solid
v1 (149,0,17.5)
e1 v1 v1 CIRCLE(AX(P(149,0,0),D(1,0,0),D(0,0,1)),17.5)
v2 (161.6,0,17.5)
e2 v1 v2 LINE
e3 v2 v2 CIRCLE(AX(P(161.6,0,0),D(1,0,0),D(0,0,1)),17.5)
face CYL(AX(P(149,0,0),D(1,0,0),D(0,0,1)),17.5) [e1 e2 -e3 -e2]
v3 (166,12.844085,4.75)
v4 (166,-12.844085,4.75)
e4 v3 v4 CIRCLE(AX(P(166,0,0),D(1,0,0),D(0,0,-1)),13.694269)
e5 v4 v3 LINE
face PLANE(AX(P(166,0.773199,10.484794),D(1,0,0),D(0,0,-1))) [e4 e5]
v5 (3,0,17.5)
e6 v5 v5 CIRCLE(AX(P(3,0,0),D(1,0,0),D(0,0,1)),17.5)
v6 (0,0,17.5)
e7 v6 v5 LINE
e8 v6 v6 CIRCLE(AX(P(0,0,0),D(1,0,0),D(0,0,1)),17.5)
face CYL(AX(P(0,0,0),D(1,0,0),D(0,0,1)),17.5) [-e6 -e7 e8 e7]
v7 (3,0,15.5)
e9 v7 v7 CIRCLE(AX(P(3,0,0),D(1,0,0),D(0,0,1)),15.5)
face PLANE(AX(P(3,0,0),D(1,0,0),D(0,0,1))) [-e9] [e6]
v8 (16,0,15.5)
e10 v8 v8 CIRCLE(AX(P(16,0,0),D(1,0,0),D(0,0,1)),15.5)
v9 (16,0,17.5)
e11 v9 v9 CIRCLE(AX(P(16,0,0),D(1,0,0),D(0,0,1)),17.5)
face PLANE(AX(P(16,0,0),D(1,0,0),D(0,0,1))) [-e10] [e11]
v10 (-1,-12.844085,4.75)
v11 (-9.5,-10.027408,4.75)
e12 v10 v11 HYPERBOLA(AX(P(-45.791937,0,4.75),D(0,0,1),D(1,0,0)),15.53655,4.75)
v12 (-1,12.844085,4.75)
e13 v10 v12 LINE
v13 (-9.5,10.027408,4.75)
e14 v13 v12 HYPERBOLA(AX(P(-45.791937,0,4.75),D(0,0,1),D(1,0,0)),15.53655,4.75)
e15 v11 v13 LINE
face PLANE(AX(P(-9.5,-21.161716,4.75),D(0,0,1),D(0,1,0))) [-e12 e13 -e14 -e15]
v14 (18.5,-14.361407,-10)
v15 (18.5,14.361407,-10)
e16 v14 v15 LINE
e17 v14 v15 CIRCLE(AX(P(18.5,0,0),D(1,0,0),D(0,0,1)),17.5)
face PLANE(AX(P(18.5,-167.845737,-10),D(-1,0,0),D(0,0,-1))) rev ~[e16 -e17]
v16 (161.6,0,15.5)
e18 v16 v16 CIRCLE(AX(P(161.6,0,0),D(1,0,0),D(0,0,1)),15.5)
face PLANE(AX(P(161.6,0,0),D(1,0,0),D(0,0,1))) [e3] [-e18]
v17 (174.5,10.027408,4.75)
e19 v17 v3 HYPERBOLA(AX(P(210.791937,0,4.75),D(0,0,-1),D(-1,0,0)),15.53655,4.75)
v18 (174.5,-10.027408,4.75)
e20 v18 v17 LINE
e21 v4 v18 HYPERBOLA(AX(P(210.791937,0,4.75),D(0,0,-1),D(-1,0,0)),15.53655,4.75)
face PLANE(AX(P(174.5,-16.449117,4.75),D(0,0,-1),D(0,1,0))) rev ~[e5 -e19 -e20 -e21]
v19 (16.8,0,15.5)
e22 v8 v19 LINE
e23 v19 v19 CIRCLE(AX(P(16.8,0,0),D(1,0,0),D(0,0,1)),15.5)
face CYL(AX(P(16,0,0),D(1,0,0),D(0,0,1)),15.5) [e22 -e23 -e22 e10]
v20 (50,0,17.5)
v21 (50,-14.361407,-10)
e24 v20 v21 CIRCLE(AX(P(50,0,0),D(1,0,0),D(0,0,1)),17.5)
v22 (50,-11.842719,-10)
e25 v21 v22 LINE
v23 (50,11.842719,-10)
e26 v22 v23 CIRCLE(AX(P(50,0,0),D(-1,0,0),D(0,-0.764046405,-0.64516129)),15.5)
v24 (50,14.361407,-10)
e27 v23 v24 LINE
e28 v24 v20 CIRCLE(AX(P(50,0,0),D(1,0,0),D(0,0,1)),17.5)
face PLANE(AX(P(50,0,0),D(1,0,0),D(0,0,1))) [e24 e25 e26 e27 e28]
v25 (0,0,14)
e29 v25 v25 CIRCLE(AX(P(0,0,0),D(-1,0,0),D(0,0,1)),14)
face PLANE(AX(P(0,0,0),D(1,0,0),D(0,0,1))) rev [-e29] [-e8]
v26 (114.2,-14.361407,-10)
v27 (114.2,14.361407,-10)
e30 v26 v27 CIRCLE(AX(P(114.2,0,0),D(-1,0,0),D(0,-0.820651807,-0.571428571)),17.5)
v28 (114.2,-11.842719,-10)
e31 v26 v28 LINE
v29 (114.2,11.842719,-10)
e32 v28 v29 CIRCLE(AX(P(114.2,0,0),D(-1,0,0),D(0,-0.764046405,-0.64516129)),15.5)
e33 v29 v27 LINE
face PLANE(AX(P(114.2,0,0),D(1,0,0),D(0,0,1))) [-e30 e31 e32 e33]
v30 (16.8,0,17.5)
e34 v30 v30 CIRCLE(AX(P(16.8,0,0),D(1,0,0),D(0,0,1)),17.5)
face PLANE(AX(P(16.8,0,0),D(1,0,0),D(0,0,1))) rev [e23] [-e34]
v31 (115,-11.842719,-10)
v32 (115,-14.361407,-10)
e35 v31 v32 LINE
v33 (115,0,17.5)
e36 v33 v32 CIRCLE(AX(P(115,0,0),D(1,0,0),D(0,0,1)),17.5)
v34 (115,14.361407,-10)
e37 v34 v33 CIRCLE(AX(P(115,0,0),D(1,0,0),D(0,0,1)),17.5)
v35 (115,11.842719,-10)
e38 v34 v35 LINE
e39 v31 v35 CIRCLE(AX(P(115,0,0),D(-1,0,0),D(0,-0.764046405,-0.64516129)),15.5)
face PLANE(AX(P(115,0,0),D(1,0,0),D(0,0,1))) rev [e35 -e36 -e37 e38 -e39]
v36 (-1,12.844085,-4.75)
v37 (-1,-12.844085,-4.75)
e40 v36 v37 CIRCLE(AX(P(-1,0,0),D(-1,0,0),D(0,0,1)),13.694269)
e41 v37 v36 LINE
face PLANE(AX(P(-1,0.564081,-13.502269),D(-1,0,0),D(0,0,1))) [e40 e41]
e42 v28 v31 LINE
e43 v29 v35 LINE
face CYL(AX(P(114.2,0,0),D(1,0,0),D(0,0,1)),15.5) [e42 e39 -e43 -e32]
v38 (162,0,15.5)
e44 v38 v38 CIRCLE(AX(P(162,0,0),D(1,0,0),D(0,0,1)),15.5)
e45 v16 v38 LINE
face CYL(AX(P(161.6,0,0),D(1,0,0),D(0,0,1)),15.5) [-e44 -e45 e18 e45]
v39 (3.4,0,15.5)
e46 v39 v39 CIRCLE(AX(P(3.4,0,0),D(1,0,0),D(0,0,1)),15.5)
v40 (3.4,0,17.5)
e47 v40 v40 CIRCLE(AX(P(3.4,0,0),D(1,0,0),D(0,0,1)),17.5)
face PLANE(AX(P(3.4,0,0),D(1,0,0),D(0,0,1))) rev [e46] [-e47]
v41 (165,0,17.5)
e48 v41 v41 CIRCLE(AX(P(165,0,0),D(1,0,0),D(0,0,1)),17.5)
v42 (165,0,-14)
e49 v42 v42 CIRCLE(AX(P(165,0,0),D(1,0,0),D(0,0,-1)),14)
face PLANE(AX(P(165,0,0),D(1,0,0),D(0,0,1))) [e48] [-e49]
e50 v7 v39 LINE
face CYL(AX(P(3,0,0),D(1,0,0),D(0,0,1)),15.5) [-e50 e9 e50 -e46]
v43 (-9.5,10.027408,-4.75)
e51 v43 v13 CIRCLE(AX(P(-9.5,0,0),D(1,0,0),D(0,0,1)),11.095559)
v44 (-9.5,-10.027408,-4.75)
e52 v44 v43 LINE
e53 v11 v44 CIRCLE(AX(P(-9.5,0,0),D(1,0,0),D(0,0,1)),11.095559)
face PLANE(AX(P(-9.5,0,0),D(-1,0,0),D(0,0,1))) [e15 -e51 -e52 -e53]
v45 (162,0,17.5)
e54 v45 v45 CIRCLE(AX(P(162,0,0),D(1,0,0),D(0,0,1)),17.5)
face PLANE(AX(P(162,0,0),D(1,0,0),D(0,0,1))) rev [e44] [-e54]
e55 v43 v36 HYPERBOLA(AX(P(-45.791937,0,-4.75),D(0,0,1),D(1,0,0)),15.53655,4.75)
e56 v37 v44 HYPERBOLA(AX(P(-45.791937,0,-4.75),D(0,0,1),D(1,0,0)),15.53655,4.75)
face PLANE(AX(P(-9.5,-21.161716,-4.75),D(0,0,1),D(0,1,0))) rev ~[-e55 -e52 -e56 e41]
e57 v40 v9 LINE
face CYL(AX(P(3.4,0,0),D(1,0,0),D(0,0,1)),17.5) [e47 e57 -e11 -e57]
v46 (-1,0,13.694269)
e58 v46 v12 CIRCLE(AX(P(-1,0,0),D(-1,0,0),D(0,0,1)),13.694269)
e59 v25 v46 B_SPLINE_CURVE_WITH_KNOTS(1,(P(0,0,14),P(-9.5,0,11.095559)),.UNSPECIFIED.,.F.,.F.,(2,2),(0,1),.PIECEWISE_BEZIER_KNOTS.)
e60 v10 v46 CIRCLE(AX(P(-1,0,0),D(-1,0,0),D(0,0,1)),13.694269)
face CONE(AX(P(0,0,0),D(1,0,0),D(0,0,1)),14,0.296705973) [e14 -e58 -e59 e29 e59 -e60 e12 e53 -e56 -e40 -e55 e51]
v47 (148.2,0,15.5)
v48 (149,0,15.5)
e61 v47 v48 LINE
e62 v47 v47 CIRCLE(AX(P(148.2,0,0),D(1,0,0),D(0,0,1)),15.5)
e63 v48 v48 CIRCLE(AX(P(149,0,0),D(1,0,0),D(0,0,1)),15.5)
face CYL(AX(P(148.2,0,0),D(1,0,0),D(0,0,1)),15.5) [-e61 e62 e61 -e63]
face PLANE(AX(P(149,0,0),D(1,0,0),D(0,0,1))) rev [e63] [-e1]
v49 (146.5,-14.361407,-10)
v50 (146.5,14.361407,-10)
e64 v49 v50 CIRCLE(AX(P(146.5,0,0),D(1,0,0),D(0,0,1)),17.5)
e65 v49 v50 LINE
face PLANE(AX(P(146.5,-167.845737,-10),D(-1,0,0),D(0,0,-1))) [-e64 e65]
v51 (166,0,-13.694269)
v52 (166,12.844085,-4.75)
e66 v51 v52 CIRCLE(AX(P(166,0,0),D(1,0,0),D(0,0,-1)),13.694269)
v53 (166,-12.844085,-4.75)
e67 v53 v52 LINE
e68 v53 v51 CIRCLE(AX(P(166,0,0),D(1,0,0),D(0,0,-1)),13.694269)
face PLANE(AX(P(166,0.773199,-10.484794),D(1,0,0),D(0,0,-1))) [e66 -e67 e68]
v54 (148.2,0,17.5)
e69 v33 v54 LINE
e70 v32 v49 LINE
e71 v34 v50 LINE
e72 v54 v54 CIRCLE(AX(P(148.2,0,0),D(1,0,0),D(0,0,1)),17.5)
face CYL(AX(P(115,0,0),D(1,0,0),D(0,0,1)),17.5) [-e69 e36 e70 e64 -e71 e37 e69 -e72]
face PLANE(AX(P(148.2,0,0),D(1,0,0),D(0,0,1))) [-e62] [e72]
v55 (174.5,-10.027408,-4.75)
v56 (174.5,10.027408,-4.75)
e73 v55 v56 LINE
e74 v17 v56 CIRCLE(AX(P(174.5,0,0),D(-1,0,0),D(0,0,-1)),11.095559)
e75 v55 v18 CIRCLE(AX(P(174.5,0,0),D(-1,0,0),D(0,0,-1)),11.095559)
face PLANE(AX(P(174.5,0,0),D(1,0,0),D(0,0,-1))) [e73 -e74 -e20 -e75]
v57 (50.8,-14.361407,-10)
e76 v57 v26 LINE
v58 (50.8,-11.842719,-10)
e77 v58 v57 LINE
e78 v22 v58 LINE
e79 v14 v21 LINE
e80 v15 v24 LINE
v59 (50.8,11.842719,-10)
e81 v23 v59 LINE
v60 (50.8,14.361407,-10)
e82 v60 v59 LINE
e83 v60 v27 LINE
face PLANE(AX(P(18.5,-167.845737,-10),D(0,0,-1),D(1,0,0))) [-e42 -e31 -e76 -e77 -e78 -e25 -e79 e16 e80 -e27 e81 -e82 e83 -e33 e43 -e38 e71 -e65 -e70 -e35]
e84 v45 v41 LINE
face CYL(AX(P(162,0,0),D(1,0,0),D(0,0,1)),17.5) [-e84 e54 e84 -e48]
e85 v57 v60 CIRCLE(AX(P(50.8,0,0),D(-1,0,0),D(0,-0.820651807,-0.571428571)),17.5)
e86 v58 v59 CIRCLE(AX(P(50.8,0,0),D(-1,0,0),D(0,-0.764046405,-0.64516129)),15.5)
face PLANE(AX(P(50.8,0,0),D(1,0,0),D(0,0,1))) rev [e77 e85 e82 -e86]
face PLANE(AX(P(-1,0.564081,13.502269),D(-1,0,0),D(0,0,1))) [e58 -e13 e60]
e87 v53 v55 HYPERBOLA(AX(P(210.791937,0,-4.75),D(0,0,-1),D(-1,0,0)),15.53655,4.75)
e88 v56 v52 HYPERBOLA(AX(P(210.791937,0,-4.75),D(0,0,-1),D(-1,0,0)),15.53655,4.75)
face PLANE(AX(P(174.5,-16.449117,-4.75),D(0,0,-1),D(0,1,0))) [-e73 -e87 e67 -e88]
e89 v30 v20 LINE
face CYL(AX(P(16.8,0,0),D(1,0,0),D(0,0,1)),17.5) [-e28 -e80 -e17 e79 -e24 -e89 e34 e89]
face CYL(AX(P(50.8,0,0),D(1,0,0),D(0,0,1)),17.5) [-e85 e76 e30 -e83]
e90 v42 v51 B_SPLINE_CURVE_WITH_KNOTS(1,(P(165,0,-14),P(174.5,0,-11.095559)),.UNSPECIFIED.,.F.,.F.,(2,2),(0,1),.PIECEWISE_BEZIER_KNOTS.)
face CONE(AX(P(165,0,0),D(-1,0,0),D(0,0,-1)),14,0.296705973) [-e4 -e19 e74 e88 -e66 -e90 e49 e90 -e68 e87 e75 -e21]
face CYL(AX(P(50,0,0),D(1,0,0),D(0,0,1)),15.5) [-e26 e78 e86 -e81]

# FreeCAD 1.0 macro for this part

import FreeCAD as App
import Part
import Sketcher
from FreeCAD import Vector


def add_polygon(sketch, points):
    """Adds a closed chain of lines whose ends are joined by coincident constraints."""
    first, n = sketch.GeometryCount, len(points)
    for a, b in zip(points, points[1:] + points[:1]):
        sketch.addGeometry(Part.LineSegment(App.Vector(*a, 0), App.Vector(*b, 0)), False)
    for i in range(n):
        sketch.addConstraint(Sketcher.Constraint("Coincident", first + i, 2, first + (i + 1) % n, 1))

doc = App.newDocument("Part")
body = doc.addObject("PartDesign::Body", "Body")

# Sketch on XZ plane
sketch1 = body.newObject("Sketcher::SketchObject", "Sketch")
sketch1.AttachmentSupport = (doc.getObject("XZ_Plane"), [""])
sketch1.MapMode = "FlatFace"
add_polygon(sketch1, [(0, -17.5), (0, 0), (165, 0), (165, -17.5), (162, -17.5), (162, -15.5), (161.6, -15.5), (161.6, -17.5), (149, -17.5), (149, -15.5), (148.2, -15.5), (148.2, -17.5), (115, -17.5), (115, -15.5), (114.2, -15.5), (114.2, -17.5), (50.8, -17.5), (50.8, -15.5), (50, -15.5), (50, -17.5), (16.8, -17.5), (16.8, -15.5), (16, -15.5), (16, -17.5), (3.4, -17.5), (3.4, -15.5), (3, -15.5), (3, -17.5)])  # lines 0-27
sketch1.addConstraint(Sketcher.Constraint("Vertical", 0))
sketch1.addConstraint(Sketcher.Constraint("Horizontal", 1))
sketch1.addConstraint(Sketcher.Constraint("Vertical", 2))
sketch1.addConstraint(Sketcher.Constraint("Horizontal", 3))
sketch1.addConstraint(Sketcher.Constraint("Vertical", 4))
sketch1.addConstraint(Sketcher.Constraint("Horizontal", 5))
sketch1.addConstraint(Sketcher.Constraint("Vertical", 6))
sketch1.addConstraint(Sketcher.Constraint("Horizontal", 7))
sketch1.addConstraint(Sketcher.Constraint("Vertical", 8))
sketch1.addConstraint(Sketcher.Constraint("Horizontal", 9))
sketch1.addConstraint(Sketcher.Constraint("Vertical", 10))
sketch1.addConstraint(Sketcher.Constraint("Horizontal", 11))
sketch1.addConstraint(Sketcher.Constraint("Vertical", 12))
sketch1.addConstraint(Sketcher.Constraint("Horizontal", 13))
sketch1.addConstraint(Sketcher.Constraint("Vertical", 14))
sketch1.addConstraint(Sketcher.Constraint("Horizontal", 15))
sketch1.addConstraint(Sketcher.Constraint("Vertical", 16))
sketch1.addConstraint(Sketcher.Constraint("Horizontal", 17))
sketch1.addConstraint(Sketcher.Constraint("Vertical", 18))
sketch1.addConstraint(Sketcher.Constraint("Horizontal", 19))
sketch1.addConstraint(Sketcher.Constraint("Vertical", 20))
sketch1.addConstraint(Sketcher.Constraint("Horizontal", 21))
sketch1.addConstraint(Sketcher.Constraint("Vertical", 22))
sketch1.addConstraint(Sketcher.Constraint("Horizontal", 23))
sketch1.addConstraint(Sketcher.Constraint("Vertical", 24))
sketch1.addConstraint(Sketcher.Constraint("Horizontal", 25))
sketch1.addConstraint(Sketcher.Constraint("Vertical", 26))
sketch1.addConstraint(Sketcher.Constraint("Horizontal", 27))
sketch1.addConstraint(Sketcher.Constraint("Coincident", 0, 2, -1, 1))
sketch1.addConstraint(Sketcher.Constraint("Horizontal", 3, 2, 6, 2))
sketch1.addConstraint(Sketcher.Constraint("Horizontal", 5, 2, 8, 2))
sketch1.addConstraint(Sketcher.Constraint("Horizontal", 7, 2, 10, 2))
sketch1.addConstraint(Sketcher.Constraint("Horizontal", 9, 2, 12, 2))
sketch1.addConstraint(Sketcher.Constraint("Horizontal", 11, 2, 14, 2))
sketch1.addConstraint(Sketcher.Constraint("Horizontal", 13, 2, 16, 2))
sketch1.addConstraint(Sketcher.Constraint("Horizontal", 15, 2, 18, 2))
sketch1.addConstraint(Sketcher.Constraint("Horizontal", 17, 2, 20, 2))
sketch1.addConstraint(Sketcher.Constraint("Horizontal", 19, 2, 22, 2))
sketch1.addConstraint(Sketcher.Constraint("Horizontal", 21, 2, 24, 2))
sketch1.addConstraint(Sketcher.Constraint("Horizontal", 23, 2, 26, 2))
sketch1.addConstraint(Sketcher.Constraint("Equal", 9, 13))
sketch1.addConstraint(Sketcher.Constraint("Equal", 13, 17))
sketch1.addConstraint(Sketcher.Constraint("Equal", 11, 19))
sketch1.addConstraint(Sketcher.Constraint("Equal", 17, 21))
sketch1.addConstraint(Sketcher.Constraint("Equal", 7, 23))
sketch1.addConstraint(Sketcher.Constraint("Equal", 5, 25))
sketch1.addConstraint(Sketcher.Constraint("Equal", 3, 27))
sketch1.addConstraint(Sketcher.Constraint("DistanceX", 1, 1, 1, 2, 165.0))
sketch1.addConstraint(Sketcher.Constraint("DistanceX", 3, 2, 3, 1, 3.0))
sketch1.addConstraint(Sketcher.Constraint("DistanceY", 4, 1, 4, 2, 2.0))
sketch1.addConstraint(Sketcher.Constraint("DistanceX", 5, 2, 5, 1, 0.4))
sketch1.addConstraint(Sketcher.Constraint("DistanceX", 7, 2, 7, 1, 12.6))
sketch1.addConstraint(Sketcher.Constraint("DistanceX", 9, 2, 9, 1, 0.8))
sketch1.addConstraint(Sketcher.Constraint("DistanceX", 11, 2, 11, 1, 33.2))
sketch1.addConstraint(Sketcher.Constraint("DistanceY", 0, 1, 0, 2, 17.5))
revolution = body.newObject("PartDesign::Revolution", "Revolution")
revolution.Profile = sketch1
revolution.ReferenceAxis = (sketch1, ["H_Axis"])
revolution.Angle = 360

# Sketch on XZ plane
sketch2 = body.newObject("Sketcher::SketchObject", "Sketch001")
sketch2.AttachmentSupport = (doc.getObject("XZ_Plane"), [""])
sketch2.MapMode = "FlatFace"
add_polygon(sketch2, [(18.5, -29.89913), (18.5, -10), (146.5, -10), (146.5, -29.89913)])  # lines 0-3
sketch2.addConstraint(Sketcher.Constraint("Vertical", 0))
sketch2.addConstraint(Sketcher.Constraint("Horizontal", 1))
sketch2.addConstraint(Sketcher.Constraint("Vertical", 2))
sketch2.addConstraint(Sketcher.Constraint("Horizontal", 3))
sketch2.addConstraint(Sketcher.Constraint("DistanceX", 1, 1, 1, 2, 128.0))
sketch2.addConstraint(Sketcher.Constraint("DistanceY", 0, 2, -1, 1, 10.0))
sketch2.addConstraint(Sketcher.Constraint("DistanceX", -1, 1, 0, 2, 18.5))
sketch2.addConstraint(Sketcher.Constraint("DistanceY", 0, 1, 0, 2, 19.89913))
pocket1 = body.newObject("PartDesign::Pocket", "Pocket")
pocket1.Profile = sketch2
pocket1.Type = "ThroughAll"
pocket1.Midplane = True

# Sketch on YZ plane
sketch3 = body.newObject("Sketcher::SketchObject", "Sketch002")
sketch3.AttachmentSupport = (doc.getObject("YZ_Plane"), [""])
sketch3.MapMode = "FlatFace"
sketch3.addGeometry(Part.Circle(Vector(0, 0, 0), Vector(0, 0, 1), 14), False)
sketch3.addConstraint(Sketcher.Constraint("Coincident", 0, 3, -1, 1))
sketch3.addConstraint(Sketcher.Constraint("Diameter", 0, 28.0))
pad1 = body.newObject("PartDesign::Pad", "Pad")
pad1.Profile = sketch3
pad1.Length = 9.5
pad1.Reversed = True
pad1.TaperAngle = -17

# Sketch on YZ plane
sketch4 = body.newObject("Sketcher::SketchObject", "Sketch003")
sketch4.AttachmentSupport = (doc.getObject("YZ_Plane"), [""])
sketch4.MapMode = "FlatFace"
sketch4.AttachmentOffset = App.Placement(Vector(0, 0, -9.5), App.Rotation())
add_polygon(sketch4, [(22.289878, -22.254539), (-21.161716, -22.254539), (-21.161716, -4.75), (22.289878, -4.75)])  # lines 0-3
add_polygon(sketch4, [(22.289878, 4.75), (-21.161716, 4.75), (-21.161716, 22.254539), (22.289878, 22.254539)])  # lines 4-7
sketch4.addConstraint(Sketcher.Constraint("Horizontal", 0))
sketch4.addConstraint(Sketcher.Constraint("Vertical", 1))
sketch4.addConstraint(Sketcher.Constraint("Horizontal", 2))
sketch4.addConstraint(Sketcher.Constraint("Vertical", 3))
sketch4.addConstraint(Sketcher.Constraint("Horizontal", 4))
sketch4.addConstraint(Sketcher.Constraint("Vertical", 5))
sketch4.addConstraint(Sketcher.Constraint("Horizontal", 6))
sketch4.addConstraint(Sketcher.Constraint("Vertical", 7))
sketch4.addConstraint(Sketcher.Constraint("Symmetric", 1, 2, 4, 2, -1))
sketch4.addConstraint(Sketcher.Constraint("Symmetric", 3, 2, 6, 2, -1))
sketch4.addConstraint(Sketcher.Constraint("DistanceY", 1, 2, 4, 2, 9.5))
sketch4.addConstraint(Sketcher.Constraint("DistanceY", 1, 1, 1, 2, 17.504539))
sketch4.addConstraint(Sketcher.Constraint("DistanceX", 0, 2, 0, 1, 43.451594))
sketch4.addConstraint(Sketcher.Constraint("DistanceX", 0, 2, -1, 1, 21.161716))
pocket2 = body.newObject("PartDesign::Pocket", "Pocket001")
pocket2.Profile = sketch4
pocket2.Length = 8.5
pocket2.Reversed = True

# Sketch on YZ plane
sketch5 = body.newObject("Sketcher::SketchObject", "Sketch004")
sketch5.AttachmentSupport = (doc.getObject("YZ_Plane"), [""])
sketch5.MapMode = "FlatFace"
sketch5.AttachmentOffset = App.Placement(Vector(0, 0, 165), App.Rotation())
sketch5.addGeometry(Part.Circle(Vector(0, 0, 0), Vector(0, 0, 1), 14), False)
sketch5.addConstraint(Sketcher.Constraint("Coincident", 0, 3, -1, 1))
sketch5.addConstraint(Sketcher.Constraint("Diameter", 0, 28.0))
pad2 = body.newObject("PartDesign::Pad", "Pad001")
pad2.Profile = sketch5
pad2.Length = 9.5
pad2.TaperAngle = -17

# Sketch on YZ plane
sketch6 = body.newObject("Sketcher::SketchObject", "Sketch005")
sketch6.AttachmentSupport = (doc.getObject("YZ_Plane"), [""])
sketch6.MapMode = "FlatFace"
sketch6.AttachmentOffset = App.Placement(Vector(0, 0, 174.5), App.Rotation())
add_polygon(sketch6, [(17.995515, -4.75), (-16.449117, -4.75), (-16.449117, -16.219589), (17.995515, -16.219589)])  # lines 0-3
add_polygon(sketch6, [(17.995515, 16.219589), (-16.449117, 16.219589), (-16.449117, 4.75), (17.995515, 4.75)])  # lines 4-7
sketch6.addConstraint(Sketcher.Constraint("Horizontal", 0))
sketch6.addConstraint(Sketcher.Constraint("Vertical", 1))
sketch6.addConstraint(Sketcher.Constraint("Horizontal", 2))
sketch6.addConstraint(Sketcher.Constraint("Vertical", 3))
sketch6.addConstraint(Sketcher.Constraint("Horizontal", 4))
sketch6.addConstraint(Sketcher.Constraint("Vertical", 5))
sketch6.addConstraint(Sketcher.Constraint("Horizontal", 6))
sketch6.addConstraint(Sketcher.Constraint("Vertical", 7))
sketch6.addConstraint(Sketcher.Constraint("Symmetric", 1, 2, 4, 2, -1))
sketch6.addConstraint(Sketcher.Constraint("Symmetric", 3, 2, 6, 2, -1))
sketch6.addConstraint(Sketcher.Constraint("DistanceY", 0, 2, 5, 2, 9.5))
sketch6.addConstraint(Sketcher.Constraint("DistanceX", 0, 2, 0, 1, 34.444632))
sketch6.addConstraint(Sketcher.Constraint("DistanceY", 1, 2, 1, 1, 11.469589))
sketch6.addConstraint(Sketcher.Constraint("DistanceX", 0, 2, -1, 1, 16.449117))
pocket3 = body.newObject("PartDesign::Pocket", "Pocket002")
pocket3.Profile = sketch6
pocket3.Length = 8.5

doc.recompute()
